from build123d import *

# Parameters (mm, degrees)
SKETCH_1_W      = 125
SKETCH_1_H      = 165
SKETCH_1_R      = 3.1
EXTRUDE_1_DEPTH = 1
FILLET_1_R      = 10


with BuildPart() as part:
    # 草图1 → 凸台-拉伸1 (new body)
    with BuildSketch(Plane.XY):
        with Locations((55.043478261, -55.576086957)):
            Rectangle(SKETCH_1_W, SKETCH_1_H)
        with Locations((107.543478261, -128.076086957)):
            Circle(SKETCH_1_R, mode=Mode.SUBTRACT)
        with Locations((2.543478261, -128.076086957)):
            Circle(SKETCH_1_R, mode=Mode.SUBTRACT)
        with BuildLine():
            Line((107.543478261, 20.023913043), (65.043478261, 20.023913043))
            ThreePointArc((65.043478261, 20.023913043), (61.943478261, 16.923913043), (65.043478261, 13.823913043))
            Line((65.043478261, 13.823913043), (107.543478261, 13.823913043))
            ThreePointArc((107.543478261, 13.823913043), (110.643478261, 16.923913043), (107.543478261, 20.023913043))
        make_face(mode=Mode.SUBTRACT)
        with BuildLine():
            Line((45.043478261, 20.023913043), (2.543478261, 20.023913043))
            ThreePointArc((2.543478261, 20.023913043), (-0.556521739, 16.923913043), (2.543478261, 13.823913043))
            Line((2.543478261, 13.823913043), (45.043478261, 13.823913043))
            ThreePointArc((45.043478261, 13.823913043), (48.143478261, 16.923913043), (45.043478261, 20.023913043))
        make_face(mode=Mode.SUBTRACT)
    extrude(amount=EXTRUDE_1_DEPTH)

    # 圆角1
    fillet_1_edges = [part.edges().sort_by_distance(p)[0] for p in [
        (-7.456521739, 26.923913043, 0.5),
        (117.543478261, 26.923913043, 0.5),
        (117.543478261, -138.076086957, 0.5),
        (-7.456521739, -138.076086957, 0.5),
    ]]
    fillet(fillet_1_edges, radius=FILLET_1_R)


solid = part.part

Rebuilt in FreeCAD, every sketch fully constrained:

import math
import FreeCAD as App
import Part
import Sketcher
from FreeCAD import Vector
Q = App.Units.Quantity


def edges_at(feature, points):
    """Names of the edges that pass closest to the given points."""
    edges = feature.Shape.Edges
    near = lambda p: min(range(len(edges)), key=lambda i: edges[i].distToShape(Part.Vertex(*p))[0])
    return sorted({f"Edge{near(p) + 1}" for p in points})


def add_polygon(sketch, points):
    """Adds a closed chain of lines whose ends are joined by coincident constraints."""
    first, n = sketch.GeometryCount, len(points)
    for a, b in zip(points, points[1:] + points[:1]):
        sketch.addGeometry(Part.LineSegment(App.Vector(*a, 0), App.Vector(*b, 0)), False)
    for i in range(n):
        sketch.addConstraint(Sketcher.Constraint("Coincident", first + i, 2, first + (i + 1) % n, 1))

doc = App.newDocument("Part")
params = doc.addObject("Spreadsheet::Sheet", "Params")
for row, (alias, value) in enumerate([
    ("sketch1_diameter", "6.2 mm"),
    ("sketch1_width", "125 mm"),
    ("sketch1_height", "165 mm"),
    ("sketch1_width2", "42.5 mm"),
    ("pad1_length", "1 mm"),
    ("fillet_radius", "10 mm"),
], start=1):
    params.set(f"A{row}", alias)
    params.set(f"B{row}", "=" + value)
    params.setAlias(f"B{row}", alias)

body = doc.addObject("PartDesign::Body", "Body")

sketch1 = body.newObject("Sketcher::SketchObject", "Sketch")
sketch1.AttachmentSupport = (doc.getObject("XY_Plane"), [""])
sketch1.MapMode = "FlatFace"
add_polygon(sketch1, [(-7.456522, 26.923913), (-7.456522, -138.076087), (117.543478, -138.076087), (117.543478, 26.923913)])
sketch1.addGeometry(Part.Circle(Vector(2.543478, -128.076087, 0), Vector(0, 0, 1), 3.1), False)
sketch1.addGeometry(Part.Circle(Vector(107.543478, -128.076087, 0), Vector(0, 0, 1), 3.1), False)
sketch1.addGeometry(Part.LineSegment(Vector(2.543478, 20.023913, 0), Vector(45.043478, 20.023913, 0)), False)
sketch1.addGeometry(Part.ArcOfCircle(Part.Circle(Vector(45.043478, 16.923913, 0), Vector(0, 0, 1), 3.1), math.radians(-90), math.radians(90)), False)
sketch1.addGeometry(Part.LineSegment(Vector(45.043478, 13.823913, 0), Vector(2.543478, 13.823913, 0)), False)
sketch1.addGeometry(Part.ArcOfCircle(Part.Circle(Vector(2.543478, 16.923913, 0), Vector(0, 0, 1), 3.1), math.radians(90), math.radians(270)), False)
sketch1.addGeometry(Part.LineSegment(Vector(65.043478, 20.023913, 0), Vector(107.543478, 20.023913, 0)), False)
sketch1.addGeometry(Part.ArcOfCircle(Part.Circle(Vector(107.543478, 16.923913, 0), Vector(0, 0, 1), 3.1), math.radians(-90), math.radians(90)), False)
sketch1.addGeometry(Part.LineSegment(Vector(107.543478, 13.823913, 0), Vector(65.043478, 13.823913, 0)), False)
sketch1.addGeometry(Part.ArcOfCircle(Part.Circle(Vector(65.043478, 16.923913, 0), Vector(0, 0, 1), 3.1), math.radians(90), math.radians(270)), False)
sketch1.addConstraint([
    Sketcher.Constraint("Tangent", 6, 2, 7, 2),
    Sketcher.Constraint("Tangent", 7, 1, 8, 1),
    Sketcher.Constraint("Tangent", 8, 2, 9, 2),
    Sketcher.Constraint("Tangent", 9, 1, 6, 1),
    Sketcher.Constraint("Tangent", 10, 2, 11, 2),
    Sketcher.Constraint("Tangent", 11, 1, 12, 1),
    Sketcher.Constraint("Tangent", 12, 2, 13, 2),
    Sketcher.Constraint("Tangent", 13, 1, 10, 1),
    Sketcher.Constraint("Vertical", 0),
    Sketcher.Constraint("Horizontal", 1),
    Sketcher.Constraint("Vertical", 2),
    Sketcher.Constraint("Horizontal", 3),
    Sketcher.Constraint("Horizontal", 6),
    Sketcher.Constraint("Horizontal", 8),
    Sketcher.Constraint("Horizontal", 10),
    Sketcher.Constraint("Horizontal", 12),
    Sketcher.Constraint("Equal", 4, 5),
    Sketcher.Constraint("Equal", 5, 7),
    Sketcher.Constraint("Equal", 9, 11),
    Sketcher.Constraint("Horizontal", 4, 3, 5, 3),
    Sketcher.Constraint("Horizontal", 9, 3, 11, 3),
    Sketcher.Constraint("Vertical", 4, 3, 9, 3),
    Sketcher.Constraint("Vertical", 5, 3, 11, 3),
    Sketcher.Constraint("Equal", 8, 10),
    Sketcher.Constraint("Diameter", 4, Q("6.2 mm")),
    Sketcher.Constraint("DistanceX", 1, 1, 1, 2, Q("125 mm")),
    Sketcher.Constraint("DistanceY", 0, 2, 0, 1, Q("165 mm")),
    Sketcher.Constraint("DistanceX", 6, 1, 6, 2, Q("42.5 mm")),
    Sketcher.Constraint("DistanceX", 4, 3, 5, 3, Q("105 mm")),
    Sketcher.Constraint("DistanceY", 4, 3, 7, 3, Q("145 mm")),
    Sketcher.Constraint("DistanceX", 0, 2, 4, 3, Q("10 mm")),
    Sketcher.Constraint("DistanceY", 0, 2, 4, 3, Q("10 mm")),
    Sketcher.Constraint("DistanceX", -1, 1, 4, 3, Q("2.543478 mm")),
    Sketcher.Constraint("DistanceY", 4, 3, -1, 1, Q("128.076087 mm")),
])
sketch1.setExpression("Constraints[28]", "Params.sketch1_diameter")
sketch1.setExpression("Constraints[29]", "Params.sketch1_width")
sketch1.setExpression("Constraints[30]", "Params.sketch1_height")
sketch1.setExpression("Constraints[31]", "Params.sketch1_width2")
pad1 = body.newObject("PartDesign::Pad", "Pad")
pad1.Profile = sketch1
pad1.setExpression("Length", "Params.pad1_length")
doc.recompute()

fillet = body.newObject("PartDesign::Fillet", "Fillet")
fillet.Base = (pad1, edges_at(pad1, [
    (-7.457, 26.924, 0.5),
    (117.543, 26.924, 0.5),
    (117.543, -138.076, 0.5),
    (-7.457, -138.076, 0.5),
]))
fillet.setExpression("Radius", "Params.fillet_radius")

doc.recompute()
